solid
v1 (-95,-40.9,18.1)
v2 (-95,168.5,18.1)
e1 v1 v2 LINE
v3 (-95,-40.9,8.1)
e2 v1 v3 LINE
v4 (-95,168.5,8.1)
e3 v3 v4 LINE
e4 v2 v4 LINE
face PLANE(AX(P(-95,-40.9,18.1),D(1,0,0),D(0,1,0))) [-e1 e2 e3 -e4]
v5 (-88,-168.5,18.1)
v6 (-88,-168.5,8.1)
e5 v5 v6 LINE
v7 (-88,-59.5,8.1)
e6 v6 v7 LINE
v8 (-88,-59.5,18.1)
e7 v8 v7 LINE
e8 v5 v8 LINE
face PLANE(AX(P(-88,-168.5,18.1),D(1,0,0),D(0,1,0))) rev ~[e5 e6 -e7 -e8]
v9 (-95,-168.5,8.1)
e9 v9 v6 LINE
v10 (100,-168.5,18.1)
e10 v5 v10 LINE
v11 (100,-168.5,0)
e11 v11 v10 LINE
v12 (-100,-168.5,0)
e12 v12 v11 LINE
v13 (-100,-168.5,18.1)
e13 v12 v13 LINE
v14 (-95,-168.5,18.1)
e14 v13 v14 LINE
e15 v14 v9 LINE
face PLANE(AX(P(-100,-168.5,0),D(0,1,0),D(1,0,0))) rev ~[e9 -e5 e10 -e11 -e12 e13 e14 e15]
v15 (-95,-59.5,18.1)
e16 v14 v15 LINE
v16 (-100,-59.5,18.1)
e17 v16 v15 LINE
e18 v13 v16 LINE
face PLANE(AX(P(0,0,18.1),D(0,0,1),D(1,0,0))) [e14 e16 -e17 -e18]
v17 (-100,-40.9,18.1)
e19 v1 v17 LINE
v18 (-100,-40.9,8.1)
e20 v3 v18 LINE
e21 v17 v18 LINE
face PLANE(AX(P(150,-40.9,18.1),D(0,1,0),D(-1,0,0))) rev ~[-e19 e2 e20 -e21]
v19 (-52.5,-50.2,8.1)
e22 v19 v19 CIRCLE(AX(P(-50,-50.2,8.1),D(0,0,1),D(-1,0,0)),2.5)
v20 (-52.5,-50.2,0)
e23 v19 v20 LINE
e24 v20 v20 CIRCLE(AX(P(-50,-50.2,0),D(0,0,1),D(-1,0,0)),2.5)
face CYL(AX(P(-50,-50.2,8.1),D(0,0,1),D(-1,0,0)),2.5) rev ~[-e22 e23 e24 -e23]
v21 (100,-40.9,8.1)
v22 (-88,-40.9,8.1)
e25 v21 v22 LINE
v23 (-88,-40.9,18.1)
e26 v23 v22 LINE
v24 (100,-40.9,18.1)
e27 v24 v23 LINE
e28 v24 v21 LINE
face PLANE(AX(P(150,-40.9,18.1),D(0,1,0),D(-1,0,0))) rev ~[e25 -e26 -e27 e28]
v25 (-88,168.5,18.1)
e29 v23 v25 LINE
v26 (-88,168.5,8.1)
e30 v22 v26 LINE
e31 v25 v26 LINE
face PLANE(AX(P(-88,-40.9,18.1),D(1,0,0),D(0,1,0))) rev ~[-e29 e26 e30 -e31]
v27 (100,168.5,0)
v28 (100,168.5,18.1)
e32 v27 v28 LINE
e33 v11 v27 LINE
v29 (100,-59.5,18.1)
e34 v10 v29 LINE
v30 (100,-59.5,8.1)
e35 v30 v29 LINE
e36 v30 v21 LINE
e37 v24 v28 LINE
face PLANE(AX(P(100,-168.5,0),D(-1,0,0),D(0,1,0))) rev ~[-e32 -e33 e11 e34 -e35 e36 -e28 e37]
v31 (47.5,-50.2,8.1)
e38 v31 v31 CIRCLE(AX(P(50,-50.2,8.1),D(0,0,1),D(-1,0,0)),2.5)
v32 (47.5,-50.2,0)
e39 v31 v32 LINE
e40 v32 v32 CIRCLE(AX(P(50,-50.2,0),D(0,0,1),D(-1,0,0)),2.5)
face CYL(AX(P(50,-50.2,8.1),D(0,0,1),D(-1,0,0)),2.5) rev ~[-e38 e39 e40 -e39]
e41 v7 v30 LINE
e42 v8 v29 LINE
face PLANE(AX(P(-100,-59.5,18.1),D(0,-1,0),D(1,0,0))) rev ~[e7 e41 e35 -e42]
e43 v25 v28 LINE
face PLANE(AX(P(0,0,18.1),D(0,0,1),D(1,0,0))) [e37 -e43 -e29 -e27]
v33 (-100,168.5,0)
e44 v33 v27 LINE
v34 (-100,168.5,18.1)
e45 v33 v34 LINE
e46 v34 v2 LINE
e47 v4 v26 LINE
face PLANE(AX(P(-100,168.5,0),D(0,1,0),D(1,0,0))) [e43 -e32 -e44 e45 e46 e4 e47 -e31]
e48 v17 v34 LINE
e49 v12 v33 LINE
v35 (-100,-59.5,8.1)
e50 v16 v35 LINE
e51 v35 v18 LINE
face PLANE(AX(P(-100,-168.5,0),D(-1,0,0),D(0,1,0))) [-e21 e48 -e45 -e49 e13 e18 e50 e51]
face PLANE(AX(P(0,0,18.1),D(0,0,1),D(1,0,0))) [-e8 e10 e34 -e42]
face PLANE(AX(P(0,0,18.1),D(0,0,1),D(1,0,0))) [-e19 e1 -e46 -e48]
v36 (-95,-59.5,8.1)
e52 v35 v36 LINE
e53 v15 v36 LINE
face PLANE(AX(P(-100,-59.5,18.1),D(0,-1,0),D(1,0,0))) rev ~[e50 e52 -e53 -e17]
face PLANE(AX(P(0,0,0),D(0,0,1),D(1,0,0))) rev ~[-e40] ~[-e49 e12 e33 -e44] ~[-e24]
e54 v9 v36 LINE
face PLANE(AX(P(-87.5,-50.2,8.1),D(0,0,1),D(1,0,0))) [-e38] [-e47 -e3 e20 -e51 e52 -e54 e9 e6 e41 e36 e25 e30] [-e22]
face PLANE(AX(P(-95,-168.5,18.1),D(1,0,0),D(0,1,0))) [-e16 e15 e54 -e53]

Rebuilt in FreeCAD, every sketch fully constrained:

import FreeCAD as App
import Part
import Sketcher
Q = App.Units.Quantity

doc = App.newDocument("Part")
body = doc.addObject("PartDesign::Body", "Body")

# Sketch on XY plane
sketch1 = body.newObject("Sketcher::SketchObject", "Sketch")
sketch1.AttachmentSupport = (doc.getObject("XY_Plane"), [""])
sketch1.MapMode = "FlatFace"
sketch1.addGeometry([
    Part.LineSegment(App.Vector(-100, 168, 0), App.Vector(-100, -168, 0)),
    Part.LineSegment(App.Vector(-100, -168, 0), App.Vector(100, -168, 0)),
    Part.LineSegment(App.Vector(100, -168, 0), App.Vector(100, 168, 0)),
    Part.LineSegment(App.Vector(100, 168, 0), App.Vector(-100, 168, 0)),
], False)
sketch1.addConstraint([
    Sketcher.Constraint("Coincident", 0, 2, 1, 1),
    Sketcher.Constraint("Coincident", 1, 2, 2, 1),
    Sketcher.Constraint("Coincident", 2, 2, 3, 1),
    Sketcher.Constraint("Coincident", 3, 2, 0, 1),
    Sketcher.Constraint("Vertical", 0),
    Sketcher.Constraint("Horizontal", 1),
    Sketcher.Constraint("Vertical", 2),
    Sketcher.Constraint("Horizontal", 3),
    Sketcher.Constraint("Symmetric", 0, 2, 2, 2, -1, 1),
    Sketcher.Constraint("DistanceX", 1, 1, 1, 2, Q("200 mm")),
    Sketcher.Constraint("DistanceY", 0, 2, 0, 1, Q("337 mm")),
])
pad1 = body.newObject("PartDesign::Pad", "Pad")
pad1.Profile = sketch1
pad1.Length = 18.1

# Sketch on XY plane
sketch2 = body.newObject("Sketcher::SketchObject", "Sketch001")
sketch2.AttachmentSupport = (doc.getObject("XY_Plane"), [""])
sketch2.MapMode = "FlatFace"
sketch2.AttachmentOffset = App.Placement(App.Vector(0, 0, 18.1), App.Rotation())
sketch2.addGeometry([
    Part.LineSegment(App.Vector(-100, -41, 0), App.Vector(-100, -60, 0)),
    Part.LineSegment(App.Vector(-100, -60, 0), App.Vector(150, -60, 0)),
    Part.LineSegment(App.Vector(150, -60, 0), App.Vector(150, -41, 0)),
    Part.LineSegment(App.Vector(150, -41, 0), App.Vector(-100, -41, 0)),
], False)
sketch2.addConstraint([
    Sketcher.Constraint("Coincident", 0, 2, 1, 1),
    Sketcher.Constraint("Coincident", 1, 2, 2, 1),
    Sketcher.Constraint("Coincident", 2, 2, 3, 1),
    Sketcher.Constraint("Coincident", 3, 2, 0, 1),
    Sketcher.Constraint("Vertical", 0),
    Sketcher.Constraint("Horizontal", 1),
    Sketcher.Constraint("Vertical", 2),
    Sketcher.Constraint("Horizontal", 3),
    Sketcher.Constraint("DistanceX", 1, 1, 1, 2, Q("250 mm")),
    Sketcher.Constraint("DistanceY", 0, 2, 0, 1, Q("18.6 mm")),
    Sketcher.Constraint("DistanceX", 0, 2, -1, 1, Q("100 mm")),
    Sketcher.Constraint("DistanceY", 0, 2, -1, 1, Q("59.5 mm")),
])
pocket1 = body.newObject("PartDesign::Pocket", "Pocket")
pocket1.Profile = sketch2
pocket1.Length = 10

# Sketch on XY plane
sketch3 = body.newObject("Sketcher::SketchObject", "Sketch002")
sketch3.AttachmentSupport = (doc.getObject("XY_Plane"), [""])
sketch3.MapMode = "FlatFace"
sketch3.AttachmentOffset = App.Placement(App.Vector(0, 0, 8.1), App.Rotation())
sketch3.addGeometry([
    Part.Circle(App.Vector(-50, -50.2, 0), App.Vector(0, 0, 1), 2.5),
    Part.Circle(App.Vector(50, -50.2, 0), App.Vector(0, 0, 1), 2.5),
], False)
sketch3.addConstraint([
    Sketcher.Constraint("Equal", 0, 1),
    Sketcher.Constraint("Symmetric", 0, 3, 1, 3, -2),
    Sketcher.Constraint("Diameter", 0, Q("5 mm")),
    Sketcher.Constraint("DistanceX", 0, 3, -1, 1, Q("50 mm")),
    Sketcher.Constraint("DistanceY", 0, 3, -1, 1, Q("50.2 mm")),
])
pocket2 = body.newObject("PartDesign::Pocket", "Pocket001")
pocket2.Profile = sketch3
pocket2.Length = 25

# Sketch on XY plane
sketch4 = body.newObject("Sketcher::SketchObject", "Sketch003")
sketch4.AttachmentSupport = (doc.getObject("XY_Plane"), [""])
sketch4.MapMode = "FlatFace"
sketch4.AttachmentOffset = App.Placement(App.Vector(0, 0, 18.1), App.Rotation())
sketch4.addGeometry([
    Part.LineSegment(App.Vector(-95, 168, 0), App.Vector(-95, -41, 0)),
    Part.LineSegment(App.Vector(-95, -41, 0), App.Vector(-88, -41, 0)),
    Part.LineSegment(App.Vector(-88, -41, 0), App.Vector(-88, 168, 0)),
    Part.LineSegment(App.Vector(-88, 168, 0), App.Vector(-95, 168, 0)),
], False)
sketch4.addConstraint([
    Sketcher.Constraint("Coincident", 0, 2, 1, 1),
    Sketcher.Constraint("Coincident", 1, 2, 2, 1),
    Sketcher.Constraint("Coincident", 2, 2, 3, 1),
    Sketcher.Constraint("Coincident", 3, 2, 0, 1),
    Sketcher.Constraint("Vertical", 0),
    Sketcher.Constraint("Horizontal", 1),
    Sketcher.Constraint("Vertical", 2),
    Sketcher.Constraint("Horizontal", 3),
    Sketcher.Constraint("DistanceX", 1, 1, 1, 2, Q("7 mm")),
    Sketcher.Constraint("DistanceY", 0, 2, 0, 1, Q("209.4 mm")),
    Sketcher.Constraint("DistanceX", 0, 2, -1, 1, Q("95 mm")),
    Sketcher.Constraint("DistanceY", 0, 2, -1, 1, Q("40.9 mm")),
])
pocket3 = body.newObject("PartDesign::Pocket", "Pocket002")
pocket3.Profile = sketch4
pocket3.Length = 10

# Sketch on XY plane
sketch5 = body.newObject("Sketcher::SketchObject", "Sketch004")
sketch5.AttachmentSupport = (doc.getObject("XY_Plane"), [""])
sketch5.MapMode = "FlatFace"
sketch5.AttachmentOffset = App.Placement(App.Vector(0, 0, 18.1), App.Rotation())
sketch5.addGeometry([
    Part.LineSegment(App.Vector(-95, -60, 0), App.Vector(-95, -168, 0)),
    Part.LineSegment(App.Vector(-95, -168, 0), App.Vector(-88, -168, 0)),
    Part.LineSegment(App.Vector(-88, -168, 0), App.Vector(-88, -60, 0)),
    Part.LineSegment(App.Vector(-88, -60, 0), App.Vector(-95, -60, 0)),
], False)
sketch5.addConstraint([
    Sketcher.Constraint("Coincident", 0, 2, 1, 1),
    Sketcher.Constraint("Coincident", 1, 2, 2, 1),
    Sketcher.Constraint("Coincident", 2, 2, 3, 1),
    Sketcher.Constraint("Coincident", 3, 2, 0, 1),
    Sketcher.Constraint("Vertical", 0),
    Sketcher.Constraint("Horizontal", 1),
    Sketcher.Constraint("Vertical", 2),
    Sketcher.Constraint("Horizontal", 3),
    Sketcher.Constraint("DistanceX", 1, 1, 1, 2, Q("7 mm")),
    Sketcher.Constraint("DistanceY", 0, 2, 0, 1, Q("109 mm")),
    Sketcher.Constraint("DistanceX", 0, 2, -1, 1, Q("95 mm")),
    Sketcher.Constraint("DistanceY", 0, 2, -1, 1, Q("168.5 mm")),
])
pocket4 = body.newObject("PartDesign::Pocket", "Pocket003")
pocket4.Profile = sketch5
pocket4.Length = 10

doc.recompute()
